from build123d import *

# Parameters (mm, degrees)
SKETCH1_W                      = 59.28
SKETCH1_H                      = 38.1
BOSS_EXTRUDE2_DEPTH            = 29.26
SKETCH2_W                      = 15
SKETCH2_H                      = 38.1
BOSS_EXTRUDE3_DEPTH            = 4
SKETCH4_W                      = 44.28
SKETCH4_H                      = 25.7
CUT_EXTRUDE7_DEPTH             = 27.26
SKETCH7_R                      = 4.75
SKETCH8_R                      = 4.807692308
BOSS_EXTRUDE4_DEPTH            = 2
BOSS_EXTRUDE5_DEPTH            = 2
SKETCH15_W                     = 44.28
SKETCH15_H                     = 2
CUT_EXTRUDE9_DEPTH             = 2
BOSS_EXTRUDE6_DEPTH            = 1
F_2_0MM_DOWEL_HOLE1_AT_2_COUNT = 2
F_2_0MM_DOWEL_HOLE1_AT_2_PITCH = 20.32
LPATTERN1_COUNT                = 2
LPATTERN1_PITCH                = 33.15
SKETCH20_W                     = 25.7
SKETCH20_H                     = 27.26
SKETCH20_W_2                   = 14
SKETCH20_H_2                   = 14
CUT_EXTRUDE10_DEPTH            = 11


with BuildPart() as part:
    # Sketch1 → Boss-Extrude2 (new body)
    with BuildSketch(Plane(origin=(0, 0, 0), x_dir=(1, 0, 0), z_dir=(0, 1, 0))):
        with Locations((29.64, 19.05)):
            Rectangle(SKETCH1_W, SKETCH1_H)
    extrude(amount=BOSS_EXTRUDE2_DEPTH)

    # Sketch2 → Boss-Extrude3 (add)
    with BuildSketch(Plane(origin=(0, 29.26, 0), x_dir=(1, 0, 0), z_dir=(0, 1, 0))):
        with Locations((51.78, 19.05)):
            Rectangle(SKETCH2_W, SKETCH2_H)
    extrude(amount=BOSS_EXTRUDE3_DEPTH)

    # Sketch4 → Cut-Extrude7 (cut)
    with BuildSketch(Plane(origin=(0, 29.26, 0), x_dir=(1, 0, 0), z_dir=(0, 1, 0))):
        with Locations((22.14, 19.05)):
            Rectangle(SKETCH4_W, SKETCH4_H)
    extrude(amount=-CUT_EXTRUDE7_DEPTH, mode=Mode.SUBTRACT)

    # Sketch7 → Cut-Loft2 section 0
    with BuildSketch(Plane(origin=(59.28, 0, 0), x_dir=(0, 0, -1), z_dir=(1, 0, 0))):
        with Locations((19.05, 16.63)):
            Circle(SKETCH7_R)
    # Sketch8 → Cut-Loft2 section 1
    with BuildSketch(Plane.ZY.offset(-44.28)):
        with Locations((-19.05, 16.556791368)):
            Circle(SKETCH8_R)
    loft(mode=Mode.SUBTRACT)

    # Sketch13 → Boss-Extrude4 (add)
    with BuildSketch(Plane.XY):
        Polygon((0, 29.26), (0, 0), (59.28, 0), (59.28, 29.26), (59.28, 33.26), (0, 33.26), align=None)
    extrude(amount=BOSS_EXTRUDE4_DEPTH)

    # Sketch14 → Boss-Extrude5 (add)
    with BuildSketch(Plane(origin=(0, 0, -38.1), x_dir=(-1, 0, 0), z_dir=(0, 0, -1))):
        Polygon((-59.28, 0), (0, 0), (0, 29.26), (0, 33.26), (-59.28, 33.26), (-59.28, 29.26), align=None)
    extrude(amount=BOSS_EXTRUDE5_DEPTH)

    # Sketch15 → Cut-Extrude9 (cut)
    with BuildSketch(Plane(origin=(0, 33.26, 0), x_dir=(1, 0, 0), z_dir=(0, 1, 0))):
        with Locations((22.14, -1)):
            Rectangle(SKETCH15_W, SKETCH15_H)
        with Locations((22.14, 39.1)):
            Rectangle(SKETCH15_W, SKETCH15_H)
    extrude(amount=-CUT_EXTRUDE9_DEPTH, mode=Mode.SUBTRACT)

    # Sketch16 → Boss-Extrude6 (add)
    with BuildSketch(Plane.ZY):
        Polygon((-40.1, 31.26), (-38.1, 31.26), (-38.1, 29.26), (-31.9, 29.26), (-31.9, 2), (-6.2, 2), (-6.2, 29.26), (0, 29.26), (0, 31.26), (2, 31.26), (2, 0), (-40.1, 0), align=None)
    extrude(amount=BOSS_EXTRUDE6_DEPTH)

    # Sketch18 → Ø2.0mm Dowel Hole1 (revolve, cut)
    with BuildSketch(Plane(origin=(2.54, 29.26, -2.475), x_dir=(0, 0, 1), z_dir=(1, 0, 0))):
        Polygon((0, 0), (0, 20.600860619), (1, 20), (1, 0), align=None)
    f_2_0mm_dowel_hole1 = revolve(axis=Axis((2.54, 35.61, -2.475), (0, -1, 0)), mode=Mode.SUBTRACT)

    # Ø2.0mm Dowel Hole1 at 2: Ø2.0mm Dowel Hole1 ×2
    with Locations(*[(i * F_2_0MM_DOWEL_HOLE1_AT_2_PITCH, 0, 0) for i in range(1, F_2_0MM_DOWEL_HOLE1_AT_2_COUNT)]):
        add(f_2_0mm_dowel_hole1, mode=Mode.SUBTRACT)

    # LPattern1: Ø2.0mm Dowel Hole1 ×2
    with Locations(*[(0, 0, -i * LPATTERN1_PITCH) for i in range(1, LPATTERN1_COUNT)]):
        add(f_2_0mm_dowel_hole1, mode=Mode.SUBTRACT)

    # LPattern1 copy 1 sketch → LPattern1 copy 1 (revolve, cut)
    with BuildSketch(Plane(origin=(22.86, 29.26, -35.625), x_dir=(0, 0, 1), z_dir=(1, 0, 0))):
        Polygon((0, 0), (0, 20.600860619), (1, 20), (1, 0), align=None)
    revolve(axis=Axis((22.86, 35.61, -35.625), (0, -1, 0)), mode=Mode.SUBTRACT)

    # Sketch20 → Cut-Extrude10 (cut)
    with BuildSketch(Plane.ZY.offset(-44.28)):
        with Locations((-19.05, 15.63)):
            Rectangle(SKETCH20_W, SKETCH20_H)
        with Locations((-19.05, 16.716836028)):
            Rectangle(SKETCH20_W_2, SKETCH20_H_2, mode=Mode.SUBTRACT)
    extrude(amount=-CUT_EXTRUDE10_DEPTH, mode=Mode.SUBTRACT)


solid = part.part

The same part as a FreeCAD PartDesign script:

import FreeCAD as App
import Part
import Sketcher
Q = App.Units.Quantity


def add_polygon(sketch, points):
    """Adds a closed chain of lines whose ends are joined by coincident constraints."""
    first, n = sketch.GeometryCount, len(points)
    for a, b in zip(points, points[1:] + points[:1]):
        sketch.addGeometry(Part.LineSegment(App.Vector(*a, 0), App.Vector(*b, 0)), False)
    for i in range(n):
        sketch.addConstraint(Sketcher.Constraint("Coincident", first + i, 2, first + (i + 1) % n, 1))

doc = App.newDocument("Part")
body = doc.addObject("PartDesign::Body", "Body")

# Sketch on XZ plane
sketch1 = body.newObject("Sketcher::SketchObject", "Sketch")
sketch1.AttachmentSupport = (doc.getObject("XZ_Plane"), [""])
sketch1.MapMode = "FlatFace"
add_polygon(sketch1, [(0, -38), (0, 0), (59, 0), (59, -38)])  # lines 0-3
sketch1.addConstraint(Sketcher.Constraint("Vertical", 0))
sketch1.addConstraint(Sketcher.Constraint("Horizontal", 1))
sketch1.addConstraint(Sketcher.Constraint("Vertical", 2))
sketch1.addConstraint(Sketcher.Constraint("Horizontal", 3))
sketch1.addConstraint(Sketcher.Constraint("Coincident", 0, 2, -1, 1))
sketch1.addConstraint(Sketcher.Constraint("DistanceY", 0, 1, 0, 2, Q("38.1 mm")))
sketch1.addConstraint(Sketcher.Constraint("DistanceX", 1, 1, 1, 2, Q("59.28 mm")))
pad1 = body.newObject("PartDesign::Pad", "Pad")
pad1.Profile = sketch1
pad1.Length = 29.26
pad1.Reversed = True

# Sketch on XZ plane
sketch2 = body.newObject("Sketcher::SketchObject", "Sketch001")
sketch2.AttachmentSupport = (doc.getObject("XZ_Plane"), [""])
sketch2.MapMode = "FlatFace"
sketch2.AttachmentOffset = App.Placement(App.Vector(0, 0, -29.26), App.Rotation())
add_polygon(sketch2, [(44, -38), (44, 0), (59, 0), (59, -38)])  # lines 0-3
sketch2.addConstraint(Sketcher.Constraint("Vertical", 0))
sketch2.addConstraint(Sketcher.Constraint("Horizontal", 1))
sketch2.addConstraint(Sketcher.Constraint("Vertical", 2))
sketch2.addConstraint(Sketcher.Constraint("Horizontal", 3))
sketch2.addConstraint(Sketcher.Constraint("PointOnObject", 0, 2, -1))
sketch2.addConstraint(Sketcher.Constraint("DistanceX", 1, 1, 1, 2, Q("15 mm")))
sketch2.addConstraint(Sketcher.Constraint("DistanceY", 0, 1, 0, 2, Q("38.1 mm")))
sketch2.addConstraint(Sketcher.Constraint("DistanceX", -1, 1, 0, 2, Q("44.28 mm")))
pad2 = body.newObject("PartDesign::Pad", "Pad001")
pad2.Profile = sketch2
pad2.Length = 4
pad2.Reversed = True

# Sketch on XZ plane
sketch3 = body.newObject("Sketcher::SketchObject", "Sketch002")
sketch3.AttachmentSupport = (doc.getObject("XZ_Plane"), [""])
sketch3.MapMode = "FlatFace"
sketch3.AttachmentOffset = App.Placement(App.Vector(0, 0, -29.26), App.Rotation())
add_polygon(sketch3, [(0, -32), (0, -6), (44, -6), (44, -32)])  # lines 0-3
sketch3.addConstraint(Sketcher.Constraint("Vertical", 0))
sketch3.addConstraint(Sketcher.Constraint("Horizontal", 1))
sketch3.addConstraint(Sketcher.Constraint("Vertical", 2))
sketch3.addConstraint(Sketcher.Constraint("Horizontal", 3))
sketch3.addConstraint(Sketcher.Constraint("PointOnObject", 0, 2, -2))
sketch3.addConstraint(Sketcher.Constraint("DistanceY", 0, 1, 0, 2, Q("25.7 mm")))
sketch3.addConstraint(Sketcher.Constraint("DistanceX", 1, 1, 1, 2, Q("44.28 mm")))
sketch3.addConstraint(Sketcher.Constraint("DistanceY", 0, 2, -1, 1, Q("6.2 mm")))
pocket1 = body.newObject("PartDesign::Pocket", "Pocket")
pocket1.Profile = sketch3
pocket1.Length = 27.26
pocket1.Reversed = True

# Sketch on YZ plane
sketch4 = body.newObject("Sketcher::SketchObject", "Sketch003")
sketch4.AttachmentSupport = (doc.getObject("YZ_Plane"), [""])
sketch4.MapMode = "FlatFace"
sketch4.AttachmentOffset = App.Placement(App.Vector(0, 0, 59.28), App.Rotation())
sketch4.addGeometry(Part.Circle(App.Vector(16.6, -19.1, 0), App.Vector(0, 0, 1), 4.8), False)
sketch4.addConstraint(Sketcher.Constraint("Diameter", 0, Q("9.5 mm")))
sketch4.addConstraint(Sketcher.Constraint("DistanceX", -1, 1, 0, 3, Q("16.63 mm")))
sketch4.addConstraint(Sketcher.Constraint("DistanceY", 0, 3, -1, 1, Q("19.05 mm")))

# Sketch on YZ plane
sketch5 = body.newObject("Sketcher::SketchObject", "Sketch004")
sketch5.AttachmentSupport = (doc.getObject("YZ_Plane"), [""])
sketch5.MapMode = "FlatFace"
sketch5.AttachmentOffset = App.Placement(App.Vector(0, 0, 44.28), App.Rotation())
sketch5.addGeometry(Part.Circle(App.Vector(16.6, -19.1, 0), App.Vector(0, 0, 1), 4.8), False)
sketch5.addConstraint(Sketcher.Constraint("DistanceY", 0, 3, -1, 1, Q("19.05 mm")))
sketch5.addConstraint(Sketcher.Constraint("Diameter", 0, Q("9.615385 mm")))
sketch5.addConstraint(Sketcher.Constraint("DistanceX", -1, 1, 0, 3, Q("16.556791 mm")))

subtractiveloft = body.newObject("PartDesign::SubtractiveLoft", "SubtractiveLoft")
subtractiveloft.Profile = sketch4
subtractiveloft.Sections = [sketch5]

# Sketch on XY plane
sketch6 = body.newObject("Sketcher::SketchObject", "Sketch005")
sketch6.AttachmentSupport = (doc.getObject("XY_Plane"), [""])
sketch6.MapMode = "FlatFace"
add_polygon(sketch6, [(0, 0), (59, 0), (59, 33), (0, 33)])  # lines 0-3
sketch6.addConstraint(Sketcher.Constraint("Horizontal", 0))
sketch6.addConstraint(Sketcher.Constraint("Vertical", 1))
sketch6.addConstraint(Sketcher.Constraint("Horizontal", 2))
sketch6.addConstraint(Sketcher.Constraint("Vertical", 3))
sketch6.addConstraint(Sketcher.Constraint("Coincident", 3, 2, -1, 1))
sketch6.addConstraint(Sketcher.Constraint("DistanceX", 0, 1, 0, 2, Q("59.28 mm")))
sketch6.addConstraint(Sketcher.Constraint("DistanceY", 1, 1, 1, 2, Q("33.26 mm")))
pad3 = body.newObject("PartDesign::Pad", "Pad002")
pad3.Profile = sketch6
pad3.Length = 2

# Sketch on XY plane
sketch7 = body.newObject("Sketcher::SketchObject", "Sketch006")
sketch7.AttachmentSupport = (doc.getObject("XY_Plane"), [""])
sketch7.MapMode = "FlatFace"
sketch7.AttachmentOffset = App.Placement(App.Vector(0, 0, -38.1), App.Rotation())
add_polygon(sketch7, [(59, 0), (0, 0), (0, 33), (59, 33)])  # lines 0-3
sketch7.addConstraint(Sketcher.Constraint("Horizontal", 0))
sketch7.addConstraint(Sketcher.Constraint("Vertical", 1))
sketch7.addConstraint(Sketcher.Constraint("Horizontal", 2))
sketch7.addConstraint(Sketcher.Constraint("Vertical", 3))
sketch7.addConstraint(Sketcher.Constraint("Coincident", 0, 2, -1, 1))
sketch7.addConstraint(Sketcher.Constraint("DistanceX", 0, 2, 0, 1, Q("59.28 mm")))
sketch7.addConstraint(Sketcher.Constraint("DistanceY", 1, 1, 1, 2, Q("33.26 mm")))
pad4 = body.newObject("PartDesign::Pad", "Pad003")
pad4.Profile = sketch7
pad4.Length = 2
pad4.Reversed = True

# Sketch on XZ plane
sketch8 = body.newObject("Sketcher::SketchObject", "Sketch007")
sketch8.AttachmentSupport = (doc.getObject("XZ_Plane"), [""])
sketch8.MapMode = "FlatFace"
sketch8.AttachmentOffset = App.Placement(App.Vector(0, 0, -33.26), App.Rotation())
add_polygon(sketch8, [(0, 0), (0, 2), (44.3, 2), (44.3, 0)])  # lines 0-3
add_polygon(sketch8, [(0, -40.1), (0, -38.1), (44.3, -38.1), (44.3, -40.1)])  # lines 4-7
sketch8.addConstraint(Sketcher.Constraint("Vertical", 0))
sketch8.addConstraint(Sketcher.Constraint("Horizontal", 1))
sketch8.addConstraint(Sketcher.Constraint("Vertical", 2))
sketch8.addConstraint(Sketcher.Constraint("Horizontal", 3))
sketch8.addConstraint(Sketcher.Constraint("Vertical", 4))
sketch8.addConstraint(Sketcher.Constraint("Horizontal", 5))
sketch8.addConstraint(Sketcher.Constraint("Vertical", 6))
sketch8.addConstraint(Sketcher.Constraint("Horizontal", 7))
sketch8.addConstraint(Sketcher.Constraint("Coincident", 3, 2, -1, 1))
sketch8.addConstraint(Sketcher.Constraint("PointOnObject", 4, 2, -2))
sketch8.addConstraint(Sketcher.Constraint("Vertical", 2, 2, 5, 2))
sketch8.addConstraint(Sketcher.Constraint("Equal", 2, 4))
sketch8.addConstraint(Sketcher.Constraint("DistanceY", 0, 1, 0, 2, Q("2 mm")))
sketch8.addConstraint(Sketcher.Constraint("DistanceX", 1, 1, 1, 2, Q("44.28 mm")))
sketch8.addConstraint(Sketcher.Constraint("DistanceY", 4, 2, -1, 1, Q("38.1 mm")))
pocket2 = body.newObject("PartDesign::Pocket", "Pocket001")
pocket2.Profile = sketch8
pocket2.Length = 2
pocket2.Reversed = True

# Sketch on YZ plane
sketch9 = body.newObject("Sketcher::SketchObject", "Sketch008")
sketch9.AttachmentSupport = (doc.getObject("YZ_Plane"), [""])
sketch9.MapMode = "FlatFace"
add_polygon(sketch9, [(31.3, -38.1), (31.3, -40.1), (0, -40.1), (0, 2), (31.3, 2), (31.3, 0), (29.3, 0), (29.3, -6.2), (2, -6.2), (2, -31.9), (29.3, -31.9), (29.3, -38.1)])  # lines 0-11
sketch9.addConstraint(Sketcher.Constraint("Vertical", 0))
sketch9.addConstraint(Sketcher.Constraint("Horizontal", 1))
sketch9.addConstraint(Sketcher.Constraint("Vertical", 2))
sketch9.addConstraint(Sketcher.Constraint("Horizontal", 3))
sketch9.addConstraint(Sketcher.Constraint("Vertical", 4))
sketch9.addConstraint(Sketcher.Constraint("Horizontal", 5))
sketch9.addConstraint(Sketcher.Constraint("Vertical", 6))
sketch9.addConstraint(Sketcher.Constraint("Horizontal", 7))
sketch9.addConstraint(Sketcher.Constraint("Vertical", 8))
sketch9.addConstraint(Sketcher.Constraint("Horizontal", 9))
sketch9.addConstraint(Sketcher.Constraint("Vertical", 10))
sketch9.addConstraint(Sketcher.Constraint("Horizontal", 11))
sketch9.addConstraint(Sketcher.Constraint("PointOnObject", 1, 2, -2))
sketch9.addConstraint(Sketcher.Constraint("PointOnObject", 4, 2, -1))
sketch9.addConstraint(Sketcher.Constraint("Vertical", 0, 2, 3, 2))
sketch9.addConstraint(Sketcher.Constraint("Vertical", 6, 2, 9, 2))
sketch9.addConstraint(Sketcher.Constraint("Equal", 11, 0))
sketch9.addConstraint(Sketcher.Constraint("Equal", 0, 4))
sketch9.addConstraint(Sketcher.Constraint("Equal", 6, 10))
sketch9.addConstraint(Sketcher.Constraint("DistanceX", 5, 2, 5, 1, Q("2 mm")))
sketch9.addConstraint(Sketcher.Constraint("DistanceY", 2, 1, 2, 2, Q("42.1 mm")))
sketch9.addConstraint(Sketcher.Constraint("DistanceY", 6, 2, 6, 1, Q("6.2 mm")))
sketch9.addConstraint(Sketcher.Constraint("DistanceX", -1, 1, 7, 2, Q("2 mm")))
sketch9.addConstraint(Sketcher.Constraint("DistanceX", 1, 2, 1, 1, Q("31.26 mm")))
pad5 = body.newObject("PartDesign::Pad", "Pad004")
pad5.Profile = sketch9
pad5.Length = 1
pad5.Reversed = True

# Sketch on YZ plane
sketch10 = body.newObject("Sketcher::SketchObject", "Sketch009")
sketch10.AttachmentSupport = (doc.getObject("YZ_Plane"), [""])
sketch10.MapMode = "FlatFace"
sketch10.AttachmentOffset = App.Placement(App.Vector(0, 0, 2.54), App.Rotation())
add_polygon(sketch10, [(8.7, -2.5), (29.3, -2.5), (29.3, -1.5), (9.3, -1.5)])  # lines 0-3
sketch10.addGeometry(Part.LineSegment(App.Vector(29.3, -2.5, 0), App.Vector(8.7, -2.5, 0)), True)  # axis
sketch10.addConstraint(Sketcher.Constraint("Horizontal", 0))
sketch10.addConstraint(Sketcher.Constraint("Vertical", 1))
sketch10.addConstraint(Sketcher.Constraint("Horizontal", 2))
sketch10.addConstraint(Sketcher.Constraint("Horizontal", 4))
sketch10.addConstraint(Sketcher.Constraint("Coincident", 4, 1, 0, 2))
sketch10.addConstraint(Sketcher.Constraint("Equal", 0, 4))
sketch10.addConstraint(Sketcher.Constraint("DistanceX", 2, 2, 2, 1, Q("20 mm")))
sketch10.addConstraint(Sketcher.Constraint("DistanceY", 1, 1, 1, 2, Q("1 mm")))
sketch10.addConstraint(Sketcher.Constraint("Angle", 3, Q("-121 deg")))
sketch10.addConstraint(Sketcher.Constraint("DistanceX", -1, 1, 0, 2, Q("29.26 mm")))
sketch10.addConstraint(Sketcher.Constraint("DistanceY", 0, 2, -1, 1, Q("2.475 mm")))
groove = body.newObject("PartDesign::Groove", "Groove")
groove.Profile = sketch10
groove.ReferenceAxis = (sketch10, ["Axis0"])
groove.Angle = 360
doc.recompute()

linearpattern = body.newObject("PartDesign::LinearPattern", "LinearPattern")
linearpattern.Originals = [groove]
linearpattern.Direction = (doc.getObject("X_Axis"), [""])
linearpattern.Mode = "offset"
linearpattern.Offset = 20.32
linearpattern.Occurrences = 2
body.Tip = linearpattern
doc.recompute()

linearpattern2 = body.newObject("PartDesign::LinearPattern", "LinearPattern001")
linearpattern2.Originals = [groove]
linearpattern2.Direction = (doc.getObject("Z_Axis"), [""])
linearpattern2.Mode = "offset"
linearpattern2.Offset = 33.15
linearpattern2.Occurrences = 2
linearpattern2.Reversed = True
body.Tip = linearpattern2

# Sketch on YZ plane
sketch11 = body.newObject("Sketcher::SketchObject", "Sketch010")
sketch11.AttachmentSupport = (doc.getObject("YZ_Plane"), [""])
sketch11.MapMode = "FlatFace"
sketch11.AttachmentOffset = App.Placement(App.Vector(0, 0, 22.86), App.Rotation())
add_polygon(sketch11, [(8.7, -35.6), (29.3, -35.6), (29.3, -34.6), (9.3, -34.6)])  # lines 0-3
sketch11.addGeometry(Part.LineSegment(App.Vector(29.3, -35.6, 0), App.Vector(8.7, -35.6, 0)), True)  # axis
sketch11.addConstraint(Sketcher.Constraint("Horizontal", 0))
sketch11.addConstraint(Sketcher.Constraint("Vertical", 1))
sketch11.addConstraint(Sketcher.Constraint("Horizontal", 2))
sketch11.addConstraint(Sketcher.Constraint("Horizontal", 4))
sketch11.addConstraint(Sketcher.Constraint("Coincident", 4, 1, 0, 2))
sketch11.addConstraint(Sketcher.Constraint("Equal", 0, 4))
sketch11.addConstraint(Sketcher.Constraint("DistanceX", 2, 2, 2, 1, Q("20 mm")))
sketch11.addConstraint(Sketcher.Constraint("DistanceY", 1, 1, 1, 2, Q("1 mm")))
sketch11.addConstraint(Sketcher.Constraint("Angle", 3, Q("-121 deg")))
sketch11.addConstraint(Sketcher.Constraint("DistanceX", -1, 1, 0, 2, Q("29.26 mm")))
sketch11.addConstraint(Sketcher.Constraint("DistanceY", 0, 2, -1, 1, Q("35.625 mm")))
groove2 = body.newObject("PartDesign::Groove", "Groove001")
groove2.Profile = sketch11
groove2.ReferenceAxis = (sketch11, ["Axis0"])
groove2.Angle = 360

# Sketch on YZ plane
sketch12 = body.newObject("Sketcher::SketchObject", "Sketch011")
sketch12.AttachmentSupport = (doc.getObject("YZ_Plane"), [""])
sketch12.MapMode = "FlatFace"
sketch12.AttachmentOffset = App.Placement(App.Vector(0, 0, 44.28), App.Rotation())
add_polygon(sketch12, [(29, -32), (2, -32), (2, -6), (29, -6)])  # lines 0-3
add_polygon(sketch12, [(10, -12), (10, -26), (24, -26), (24, -12)])  # lines 4-7
sketch12.addConstraint(Sketcher.Constraint("Horizontal", 0))
sketch12.addConstraint(Sketcher.Constraint("Vertical", 1))
sketch12.addConstraint(Sketcher.Constraint("Horizontal", 2))
sketch12.addConstraint(Sketcher.Constraint("Vertical", 3))
sketch12.addConstraint(Sketcher.Constraint("Vertical", 4))
sketch12.addConstraint(Sketcher.Constraint("Horizontal", 5))
sketch12.addConstraint(Sketcher.Constraint("Vertical", 6))
sketch12.addConstraint(Sketcher.Constraint("Horizontal", 7))
sketch12.addConstraint(Sketcher.Constraint("Equal", 7, 4))
sketch12.addConstraint(Sketcher.Constraint("DistanceX", 5, 1, 5, 2, Q("14 mm")))
sketch12.addConstraint(Sketcher.Constraint("DistanceY", 1, 1, 1, 2, Q("25.7 mm")))
sketch12.addConstraint(Sketcher.Constraint("DistanceX", -1, 1, 0, 2, Q("2 mm")))
sketch12.addConstraint(Sketcher.Constraint("DistanceX", 0, 2, 0, 1, Q("27.26 mm")))
sketch12.addConstraint(Sketcher.Constraint("DistanceY", 0, 2, -1, 1, Q("31.9 mm")))
sketch12.addConstraint(Sketcher.Constraint("DistanceY", 4, 2, -1, 1, Q("26.05 mm")))
sketch12.addConstraint(Sketcher.Constraint("DistanceX", -1, 1, 4, 2, Q("9.716836 mm")))
pocket3 = body.newObject("PartDesign::Pocket", "Pocket002")
pocket3.Profile = sketch12
pocket3.Length = 11
pocket3.Reversed = True

doc.recompute()
